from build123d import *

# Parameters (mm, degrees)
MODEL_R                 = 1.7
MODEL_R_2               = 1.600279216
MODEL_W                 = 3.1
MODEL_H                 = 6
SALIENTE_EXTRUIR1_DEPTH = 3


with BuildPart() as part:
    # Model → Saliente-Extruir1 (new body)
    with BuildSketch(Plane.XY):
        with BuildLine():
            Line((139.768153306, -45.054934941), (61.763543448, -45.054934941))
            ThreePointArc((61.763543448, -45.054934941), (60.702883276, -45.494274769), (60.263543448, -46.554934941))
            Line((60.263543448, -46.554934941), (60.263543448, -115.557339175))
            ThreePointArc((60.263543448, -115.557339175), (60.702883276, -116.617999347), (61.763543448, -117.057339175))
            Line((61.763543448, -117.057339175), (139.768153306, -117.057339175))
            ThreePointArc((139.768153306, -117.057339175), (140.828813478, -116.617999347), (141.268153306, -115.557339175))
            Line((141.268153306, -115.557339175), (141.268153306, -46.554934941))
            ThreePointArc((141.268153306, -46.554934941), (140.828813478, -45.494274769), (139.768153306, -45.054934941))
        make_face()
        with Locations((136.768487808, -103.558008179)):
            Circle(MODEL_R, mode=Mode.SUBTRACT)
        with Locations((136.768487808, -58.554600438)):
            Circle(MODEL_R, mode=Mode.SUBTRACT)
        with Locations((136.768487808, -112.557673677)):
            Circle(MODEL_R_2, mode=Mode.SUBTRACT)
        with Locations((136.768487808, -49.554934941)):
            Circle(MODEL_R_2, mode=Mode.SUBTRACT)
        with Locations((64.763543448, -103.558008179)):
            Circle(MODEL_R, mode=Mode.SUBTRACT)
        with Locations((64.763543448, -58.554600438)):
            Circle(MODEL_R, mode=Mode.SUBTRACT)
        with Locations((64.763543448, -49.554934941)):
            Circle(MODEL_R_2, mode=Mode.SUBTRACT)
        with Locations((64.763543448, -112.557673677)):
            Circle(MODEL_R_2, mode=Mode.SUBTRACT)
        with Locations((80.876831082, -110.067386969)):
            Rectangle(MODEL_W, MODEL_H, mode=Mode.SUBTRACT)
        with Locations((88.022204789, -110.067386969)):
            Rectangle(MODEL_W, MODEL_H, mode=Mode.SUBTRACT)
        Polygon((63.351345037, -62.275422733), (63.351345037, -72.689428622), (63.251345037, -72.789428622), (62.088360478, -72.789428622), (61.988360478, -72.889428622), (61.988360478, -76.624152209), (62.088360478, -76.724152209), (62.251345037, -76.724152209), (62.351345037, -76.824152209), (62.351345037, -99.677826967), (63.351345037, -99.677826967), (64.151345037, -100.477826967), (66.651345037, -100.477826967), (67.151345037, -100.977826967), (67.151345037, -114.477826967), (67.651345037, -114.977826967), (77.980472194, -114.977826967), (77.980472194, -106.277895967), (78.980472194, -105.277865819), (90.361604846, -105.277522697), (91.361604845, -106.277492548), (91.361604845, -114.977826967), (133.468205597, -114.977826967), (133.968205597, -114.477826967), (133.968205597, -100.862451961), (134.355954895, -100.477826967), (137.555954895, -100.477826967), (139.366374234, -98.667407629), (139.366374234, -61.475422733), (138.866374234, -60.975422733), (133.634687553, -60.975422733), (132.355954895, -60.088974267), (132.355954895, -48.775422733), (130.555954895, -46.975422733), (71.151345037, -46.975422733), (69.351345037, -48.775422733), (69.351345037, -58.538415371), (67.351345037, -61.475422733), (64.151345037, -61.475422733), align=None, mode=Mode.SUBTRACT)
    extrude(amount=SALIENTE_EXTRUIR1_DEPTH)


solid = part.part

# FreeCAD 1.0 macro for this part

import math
import FreeCAD as App
import Part
import Sketcher

V = App.Vector

doc = App.newDocument("Part")
body = doc.addObject("PartDesign::Body", "Body")

# Sketch on XY plane
sketch1 = body.newObject("Sketcher::SketchObject", "Sketch")
sketch1.AttachmentSupport = (doc.getObject("XY_Plane"), [""])
sketch1.MapMode = "FlatFace"
sketch1.addGeometry([
    Part.LineSegment(V(139.77, -45.05, 0), V(61.76, -45.05, 0)),  # 0
    Part.ArcOfCircle(Part.Circle(V(61.76, -46.55, 0), V(0, 0, 1), 1.5), math.radians(90), math.radians(180)),  # 1
    Part.LineSegment(V(60.26, -46.55, 0), V(60.26, -115.56, 0)),  # 2
    Part.ArcOfCircle(Part.Circle(V(61.76, -115.56, 0), V(0, 0, 1), 1.5), math.radians(180), math.radians(270)),  # 3
    Part.LineSegment(V(61.76, -117.06, 0), V(139.77, -117.06, 0)),  # 4
    Part.ArcOfCircle(Part.Circle(V(139.77, -115.56, 0), V(0, 0, 1), 1.5), math.radians(-90), math.radians(0)),  # 5
    Part.LineSegment(V(141.27, -115.56, 0), V(141.27, -46.55, 0)),  # 6
    Part.ArcOfCircle(Part.Circle(V(139.77, -46.55, 0), V(0, 0, 1), 1.5), math.radians(0), math.radians(90)),  # 7
    Part.Circle(V(64.76, -112.56, 0), V(0, 0, 1), 1.6),  # 8
    Part.LineSegment(V(82.43, -113.07, 0), V(79.33, -113.07, 0)),  # 9
    Part.LineSegment(V(79.33, -113.07, 0), V(79.33, -107.07, 0)),  # 10
    Part.LineSegment(V(79.33, -107.07, 0), V(82.43, -107.07, 0)),  # 11
    Part.LineSegment(V(82.43, -107.07, 0), V(82.43, -113.07, 0)),  # 12
    Part.Circle(V(64.76, -103.56, 0), V(0, 0, 1), 1.7),  # 13
    Part.LineSegment(V(89.57, -113.07, 0), V(86.47, -113.07, 0)),  # 14
    Part.LineSegment(V(86.47, -113.07, 0), V(86.47, -107.07, 0)),  # 15
    Part.LineSegment(V(86.47, -107.07, 0), V(89.57, -107.07, 0)),  # 16
    Part.LineSegment(V(89.57, -107.07, 0), V(89.57, -113.07, 0)),  # 17
    Part.Circle(V(136.77, -112.56, 0), V(0, 0, 1), 1.6),  # 18
    Part.Circle(V(136.77, -103.56, 0), V(0, 0, 1), 1.7),  # 19
    Part.Circle(V(64.76, -58.55, 0), V(0, 0, 1), 1.7),  # 20
    Part.Circle(V(64.76, -49.55, 0), V(0, 0, 1), 1.6),  # 21
    Part.LineSegment(V(63.35, -72.69, 0), V(63.35, -62.28, 0)),  # 22
    Part.LineSegment(V(63.35, -62.28, 0), V(64.15, -61.48, 0)),  # 23
    Part.LineSegment(V(64.15, -61.48, 0), V(67.35, -61.48, 0)),  # 24
    Part.LineSegment(V(67.35, -61.48, 0), V(69.35, -58.54, 0)),  # 25
    Part.LineSegment(V(69.35, -58.54, 0), V(69.35, -48.78, 0)),  # 26
    Part.LineSegment(V(69.35, -48.78, 0), V(71.15, -46.98, 0)),  # 27
    Part.LineSegment(V(71.15, -46.98, 0), V(130.56, -46.98, 0)),  # 28
    Part.LineSegment(V(130.56, -46.98, 0), V(132.36, -48.78, 0)),  # 29
    Part.LineSegment(V(132.36, -48.78, 0), V(132.36, -60.09, 0)),  # 30
    Part.LineSegment(V(132.36, -60.09, 0), V(133.63, -60.98, 0)),  # 31
    Part.LineSegment(V(133.63, -60.98, 0), V(138.87, -60.98, 0)),  # 32
    Part.LineSegment(V(138.87, -60.98, 0), V(139.37, -61.48, 0)),  # 33
    Part.LineSegment(V(139.37, -61.48, 0), V(139.37, -98.67, 0)),  # 34
    Part.LineSegment(V(139.37, -98.67, 0), V(137.56, -100.48, 0)),  # 35
    Part.LineSegment(V(137.56, -100.48, 0), V(134.36, -100.48, 0)),  # 36
    Part.LineSegment(V(134.36, -100.48, 0), V(133.97, -100.86, 0)),  # 37
    Part.LineSegment(V(133.97, -100.86, 0), V(133.97, -114.48, 0)),  # 38
    Part.LineSegment(V(133.97, -114.48, 0), V(133.47, -114.98, 0)),  # 39
    Part.LineSegment(V(133.47, -114.98, 0), V(91.36, -114.98, 0)),  # 40
    Part.LineSegment(V(91.36, -114.98, 0), V(91.36, -106.28, 0)),  # 41
    Part.LineSegment(V(91.36, -106.28, 0), V(90.36, -105.28, 0)),  # 42
    Part.LineSegment(V(90.36, -105.28, 0), V(78.98, -105.28, 0)),  # 43
    Part.LineSegment(V(78.98, -105.28, 0), V(77.98, -106.28, 0)),  # 44
    Part.LineSegment(V(77.98, -106.28, 0), V(77.98, -114.98, 0)),  # 45
    Part.LineSegment(V(77.98, -114.98, 0), V(67.65, -114.98, 0)),  # 46
    Part.LineSegment(V(67.65, -114.98, 0), V(67.15, -114.48, 0)),  # 47
    Part.LineSegment(V(67.15, -114.48, 0), V(67.15, -100.98, 0)),  # 48
    Part.LineSegment(V(67.15, -100.98, 0), V(66.65, -100.48, 0)),  # 49
    Part.LineSegment(V(66.65, -100.48, 0), V(64.15, -100.48, 0)),  # 50
    Part.LineSegment(V(64.15, -100.48, 0), V(63.35, -99.68, 0)),  # 51
    Part.LineSegment(V(63.35, -99.68, 0), V(62.35, -99.68, 0)),  # 52
    Part.LineSegment(V(62.35, -99.68, 0), V(62.35, -76.82, 0)),  # 53
    Part.LineSegment(V(62.35, -76.82, 0), V(62.25, -76.72, 0)),  # 54
    Part.LineSegment(V(62.25, -76.72, 0), V(62.09, -76.72, 0)),  # 55
    Part.LineSegment(V(62.09, -76.72, 0), V(61.99, -76.62, 0)),  # 56
    Part.LineSegment(V(61.99, -76.62, 0), V(61.99, -72.89, 0)),  # 57
    Part.LineSegment(V(61.99, -72.89, 0), V(62.09, -72.79, 0)),  # 58
    Part.LineSegment(V(62.09, -72.79, 0), V(63.25, -72.79, 0)),  # 59
    Part.LineSegment(V(63.25, -72.79, 0), V(63.35, -72.69, 0)),  # 60
    Part.Circle(V(136.77, -58.55, 0), V(0, 0, 1), 1.7),  # 61
    Part.Circle(V(136.77, -49.55, 0), V(0, 0, 1), 1.6),  # 62
], False)
sketch1.addConstraint([
    Sketcher.Constraint("Tangent", 0, 2, 1, 1),
    Sketcher.Constraint("Tangent", 1, 2, 2, 1),
    Sketcher.Constraint("Tangent", 2, 2, 3, 1),
    Sketcher.Constraint("Tangent", 3, 2, 4, 1),
    Sketcher.Constraint("Tangent", 4, 2, 5, 1),
    Sketcher.Constraint("Tangent", 5, 2, 6, 1),
    Sketcher.Constraint("Tangent", 6, 2, 7, 1),
    Sketcher.Constraint("Tangent", 7, 2, 0, 1),
    Sketcher.Constraint("Coincident", 9, 2, 10, 1),
    Sketcher.Constraint("Coincident", 10, 2, 11, 1),
    Sketcher.Constraint("Coincident", 11, 2, 12, 1),
    Sketcher.Constraint("Coincident", 12, 2, 9, 1),
    Sketcher.Constraint("Coincident", 14, 2, 15, 1),
    Sketcher.Constraint("Coincident", 15, 2, 16, 1),
    Sketcher.Constraint("Coincident", 16, 2, 17, 1),
    Sketcher.Constraint("Coincident", 17, 2, 14, 1),
    Sketcher.Constraint("Coincident", 22, 2, 23, 1),
    Sketcher.Constraint("Coincident", 23, 2, 24, 1),
    Sketcher.Constraint("Coincident", 24, 2, 25, 1),
    Sketcher.Constraint("Coincident", 25, 2, 26, 1),
    Sketcher.Constraint("Coincident", 26, 2, 27, 1),
    Sketcher.Constraint("Coincident", 27, 2, 28, 1),
    Sketcher.Constraint("Coincident", 28, 2, 29, 1),
    Sketcher.Constraint("Coincident", 29, 2, 30, 1),
    Sketcher.Constraint("Coincident", 30, 2, 31, 1),
    Sketcher.Constraint("Coincident", 31, 2, 32, 1),
    Sketcher.Constraint("Coincident", 32, 2, 33, 1),
    Sketcher.Constraint("Coincident", 33, 2, 34, 1),
    Sketcher.Constraint("Coincident", 34, 2, 35, 1),
    Sketcher.Constraint("Coincident", 35, 2, 36, 1),
    Sketcher.Constraint("Coincident", 36, 2, 37, 1),
    Sketcher.Constraint("Coincident", 37, 2, 38, 1),
    Sketcher.Constraint("Coincident", 38, 2, 39, 1),
    Sketcher.Constraint("Coincident", 39, 2, 40, 1),
    Sketcher.Constraint("Coincident", 40, 2, 41, 1),
    Sketcher.Constraint("Coincident", 41, 2, 42, 1),
    Sketcher.Constraint("Coincident", 42, 2, 43, 1),
    Sketcher.Constraint("Coincident", 43, 2, 44, 1),
    Sketcher.Constraint("Coincident", 44, 2, 45, 1),
    Sketcher.Constraint("Coincident", 45, 2, 46, 1),
    Sketcher.Constraint("Coincident", 46, 2, 47, 1),
    Sketcher.Constraint("Coincident", 47, 2, 48, 1),
    Sketcher.Constraint("Coincident", 48, 2, 49, 1),
    Sketcher.Constraint("Coincident", 49, 2, 50, 1),
    Sketcher.Constraint("Coincident", 50, 2, 51, 1),
    Sketcher.Constraint("Coincident", 51, 2, 52, 1),
    Sketcher.Constraint("Coincident", 52, 2, 53, 1),
    Sketcher.Constraint("Coincident", 53, 2, 54, 1),
    Sketcher.Constraint("Coincident", 54, 2, 55, 1),
    Sketcher.Constraint("Coincident", 55, 2, 56, 1),
    Sketcher.Constraint("Coincident", 56, 2, 57, 1),
    Sketcher.Constraint("Coincident", 57, 2, 58, 1),
    Sketcher.Constraint("Coincident", 58, 2, 59, 1),
    Sketcher.Constraint("Coincident", 59, 2, 60, 1),
    Sketcher.Constraint("Coincident", 60, 2, 22, 1),
    Sketcher.Constraint("Horizontal", 0),
    Sketcher.Constraint("Vertical", 2),
    Sketcher.Constraint("Horizontal", 4),
    Sketcher.Constraint("Vertical", 6),
    Sketcher.Constraint("Horizontal", 9),
    Sketcher.Constraint("Vertical", 10),
    Sketcher.Constraint("Horizontal", 11),
    Sketcher.Constraint("Vertical", 12),
    Sketcher.Constraint("Horizontal", 14),
    Sketcher.Constraint("Vertical", 15),
    Sketcher.Constraint("Horizontal", 16),
    Sketcher.Constraint("Vertical", 17),
    Sketcher.Constraint("Vertical", 22),
    Sketcher.Constraint("Horizontal", 24),
    Sketcher.Constraint("Vertical", 26),
    Sketcher.Constraint("Horizontal", 28),
    Sketcher.Constraint("Vertical", 30),
    Sketcher.Constraint("Horizontal", 32),
    Sketcher.Constraint("Vertical", 34),
    Sketcher.Constraint("Horizontal", 36),
    Sketcher.Constraint("Vertical", 38),
    Sketcher.Constraint("Horizontal", 40),
    Sketcher.Constraint("Vertical", 41),
    Sketcher.Constraint("Vertical", 45),
    Sketcher.Constraint("Horizontal", 46),
    Sketcher.Constraint("Vertical", 48),
    Sketcher.Constraint("Horizontal", 50),
    Sketcher.Constraint("Horizontal", 52),
    Sketcher.Constraint("Vertical", 53),
    Sketcher.Constraint("Horizontal", 55),
    Sketcher.Constraint("Vertical", 57),
    Sketcher.Constraint("Horizontal", 59),
    Sketcher.Constraint("Equal", 1, 3),
    Sketcher.Constraint("Equal", 3, 5),
    Sketcher.Constraint("Equal", 5, 7),
    Sketcher.Constraint("Equal", 8, 18),
    Sketcher.Constraint("Equal", 13, 19),
    Sketcher.Constraint("Equal", 19, 20),
    Sketcher.Constraint("Equal", 18, 21),
    Sketcher.Constraint("Equal", 20, 61),
    Sketcher.Constraint("Equal", 21, 62),
    Sketcher.Constraint("Parallel", 23, 27),
    Sketcher.Constraint("Perpendicular", 27, 29),
    Sketcher.Constraint("Parallel", 29, 33),
    Sketcher.Constraint("Perpendicular", 33, 35),
    Sketcher.Constraint("Parallel", 35, 39),
    Sketcher.Constraint("Perpendicular", 42, 44),
    Sketcher.Constraint("Perpendicular", 39, 47),
    Sketcher.Constraint("Parallel", 47, 49),
    Sketcher.Constraint("Parallel", 49, 51),
    Sketcher.Constraint("Parallel", 51, 54),
    Sketcher.Constraint("Parallel", 54, 56),
    Sketcher.Constraint("Perpendicular", 56, 58),
    Sketcher.Constraint("Parallel", 58, 60),
    Sketcher.Constraint("Horizontal", 8, 3, 18, 3),
    Sketcher.Constraint("Horizontal", 13, 3, 19, 3),
    Sketcher.Constraint("Horizontal", 20, 3, 61, 3),
    Sketcher.Constraint("Horizontal", 21, 3, 62, 3),
    Sketcher.Constraint("Horizontal", 12, 2, 14, 2),
    Sketcher.Constraint("Horizontal", 11, 2, 15, 2),
    Sketcher.Constraint("Horizontal", 26, 2, 29, 2),
    Sketcher.Constraint("Horizontal", 24, 2, 33, 2),
    Sketcher.Constraint("Horizontal", 40, 2, 45, 2),
    Sketcher.Constraint("Horizontal", 38, 2, 47, 2),
    Sketcher.Constraint("Horizontal", 36, 2, 49, 2),
    Sketcher.Constraint("Vertical", 8, 3, 13, 3),
    Sketcher.Constraint("Vertical", 18, 3, 19, 3),
    Sketcher.Constraint("Vertical", 13, 3, 20, 3),
    Sketcher.Constraint("Vertical", 20, 3, 21, 3),
    Sketcher.Constraint("Vertical", 19, 3, 61, 3),
    Sketcher.Constraint("Vertical", 61, 3, 62, 3),
    Sketcher.Constraint("Vertical", 23, 2, 50, 2),
    Sketcher.Constraint("Vertical", 22, 2, 51, 2),
    Sketcher.Constraint("Vertical", 55, 2, 58, 2),
    Sketcher.Constraint("Equal", 11, 14),
    Sketcher.Constraint("Equal", 24, 36),
    Sketcher.Constraint("Equal", 27, 29),
    Sketcher.Constraint("Equal", 33, 39),
    Sketcher.Constraint("Equal", 47, 49),
    Sketcher.Constraint("Equal", 54, 56),
    Sketcher.Constraint("Equal", 58, 60),
    Sketcher.Constraint("Diameter", 13, 3.4),
    Sketcher.Constraint("Radius", 1, 1.5),
    Sketcher.Constraint("DistanceX", 52, 2, 52, 1, 1.0),
    Sketcher.Constraint("DistanceY", 10, 1, 10, 2, 6.0),
    Sketcher.Constraint("DistanceX", 9, 2, 9, 1, 3.1),
    Sketcher.Constraint("DistanceX", 24, 1, 24, 2, 3.2),
    Sketcher.Constraint("DistanceX", 50, 2, 50, 1, 2.5),
    Sketcher.Constraint("DistanceY", 48, 1, 48, 2, 13.5),
    Sketcher.Constraint("Diameter", 8, 3.200558),
    Sketcher.Constraint("DistanceX", 40, 2, 40, 1, 42.106601),
    Sketcher.Constraint("DistanceX", 0, 2, 0, 1, 78.00461),
    Sketcher.Constraint("DistanceX", 28, 1, 28, 2, 59.40461),
    Sketcher.Constraint("DistanceY", 30, 2, 30, 1, 11.313552),
    Sketcher.Constraint("DistanceY", 45, 2, 45, 1, 8.699931),
    Sketcher.Constraint("DistanceY", 20, 3, -1, 1, 58.5546),
    Sketcher.Constraint("Distance", 23, 1.131371),
    Sketcher.Constraint("Distance", 25, 3.55331),
    Sketcher.Constraint("Distance", 31, 1.55594),
    Sketcher.Constraint("Distance", 35, 2.56032),
    Sketcher.Constraint("Distance", 54, 0.141421),
    Sketcher.Constraint("DistanceX", 32, 1, 32, 2, 5.231687),
    Sketcher.Constraint("DistanceX", 46, 2, 46, 1, 10.329127),
    Sketcher.Constraint("DistanceX", 55, 2, 55, 1, 0.162985),
    Sketcher.Constraint("DistanceY", 2, 2, 2, 1, 69.002404),
    Sketcher.Constraint("DistanceY", 22, 1, 22, 2, 10.414006),
    Sketcher.Constraint("DistanceY", 26, 1, 26, 2, 9.762993),
    Sketcher.Constraint("DistanceY", 34, 2, 34, 1, 37.191985),
    Sketcher.Constraint("DistanceY", 38, 2, 38, 1, 13.615375),
    Sketcher.Constraint("DistanceY", 41, 1, 41, 2, 8.700334),
    Sketcher.Constraint("DistanceY", 53, 1, 53, 2, 22.853675),
    Sketcher.Constraint("DistanceY", 3, 3, -1, 1, 115.557339),
    Sketcher.Constraint("DistanceY", 13, 3, -1, 1, 103.558008),
    Sketcher.Constraint("DistanceX", -1, 1, 9, 2, 79.326831),
    Sketcher.Constraint("DistanceY", 37, 2, -1, 1, 100.862452),
    Sketcher.Constraint("DistanceX", -1, 1, 55, 2, 62.08836),
    Sketcher.Constraint("DistanceY", 57, 2, -1, 1, 72.889429),
    Sketcher.Constraint("Distance", 27, 2.545584),
    Sketcher.Constraint("Distance", 37, 0.546156),
    Sketcher.Constraint("Distance", 42, 1.414192),
    Sketcher.Constraint("Distance", 43, 11.381133),
    Sketcher.Constraint("Distance", 44, 1.414235),
    Sketcher.Constraint("DistanceX", -1, 1, 1, 3, 61.763543),
    Sketcher.Constraint("DistanceX", -1, 1, 8, 3, 64.763543),
    Sketcher.Constraint("DistanceY", 8, 3, -1, 1, 112.557674),
    Sketcher.Constraint("DistanceX", -1, 1, 18, 3, 136.768488),
    Sketcher.Constraint("DistanceY", 21, 3, -1, 1, 49.554935),
    Sketcher.Constraint("DistanceY", 9, 2, -1, 1, 113.067387),
    Sketcher.Constraint("DistanceX", -1, 1, 14, 2, 86.472205),
    Sketcher.Constraint("DistanceX", -1, 1, 42, 2, 90.361605),
])
pad1 = body.newObject("PartDesign::Pad", "Pad")
pad1.Profile = sketch1
pad1.Length = 3

doc.recompute()
